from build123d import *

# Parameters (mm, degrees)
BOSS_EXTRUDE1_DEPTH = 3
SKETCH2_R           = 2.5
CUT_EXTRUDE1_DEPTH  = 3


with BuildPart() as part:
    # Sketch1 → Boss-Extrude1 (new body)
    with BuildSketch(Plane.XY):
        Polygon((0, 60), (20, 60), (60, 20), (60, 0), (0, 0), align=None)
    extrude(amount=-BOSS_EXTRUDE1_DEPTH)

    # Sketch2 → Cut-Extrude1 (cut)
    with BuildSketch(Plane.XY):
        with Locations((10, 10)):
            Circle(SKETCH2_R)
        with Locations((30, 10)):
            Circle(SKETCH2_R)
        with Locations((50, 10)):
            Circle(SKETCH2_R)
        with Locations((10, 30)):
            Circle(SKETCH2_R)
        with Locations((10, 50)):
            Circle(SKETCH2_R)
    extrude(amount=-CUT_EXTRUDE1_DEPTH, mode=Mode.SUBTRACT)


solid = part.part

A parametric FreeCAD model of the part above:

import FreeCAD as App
import Part
import Sketcher

doc = App.newDocument("Part")
body = doc.addObject("PartDesign::Body", "Body")

# Sketch on XY plane
sketch1 = body.newObject("Sketcher::SketchObject", "Sketch")
sketch1.AttachmentSupport = (doc.getObject("XY_Plane"), [""])
sketch1.MapMode = "FlatFace"
sketch1.addGeometry([
    Part.LineSegment(App.Vector(20, 60, 0), App.Vector(0, 60, 0)),  # 0
    Part.LineSegment(App.Vector(0, 60, 0), App.Vector(0, 0, 0)),  # 1
    Part.LineSegment(App.Vector(0, 0, 0), App.Vector(60, 0, 0)),  # 2
    Part.LineSegment(App.Vector(60, 0, 0), App.Vector(60, 20, 0)),  # 3
    Part.LineSegment(App.Vector(60, 20, 0), App.Vector(20, 60, 0)),  # 4
], False)
sketch1.addConstraint([
    Sketcher.Constraint("Coincident", 0, 2, 1, 1),
    Sketcher.Constraint("Coincident", 1, 2, 2, 1),
    Sketcher.Constraint("Coincident", 2, 2, 3, 1),
    Sketcher.Constraint("Coincident", 3, 2, 4, 1),
    Sketcher.Constraint("Coincident", 4, 2, 0, 1),
    Sketcher.Constraint("Horizontal", 0),
    Sketcher.Constraint("Vertical", 1),
    Sketcher.Constraint("Horizontal", 2),
    Sketcher.Constraint("Vertical", 3),
    Sketcher.Constraint("Coincident", 1, 2, -1, 1),
    Sketcher.Constraint("Equal", 2, 1),
    Sketcher.Constraint("Equal", 0, 3),
    Sketcher.Constraint("DistanceX", 0, 2, 0, 1, 20.0),
    Sketcher.Constraint("DistanceX", 2, 1, 2, 2, 60.0),
])
pad1 = body.newObject("PartDesign::Pad", "Pad")
pad1.Profile = sketch1
pad1.Length = 3
pad1.Reversed = True

# Sketch on XY plane
sketch2 = body.newObject("Sketcher::SketchObject", "Sketch001")
sketch2.AttachmentSupport = (doc.getObject("XY_Plane"), [""])
sketch2.MapMode = "FlatFace"
sketch2.addGeometry([
    Part.Circle(App.Vector(10, 10, 0), App.Vector(0, 0, 1), 2.5),  # 0
    Part.Circle(App.Vector(30, 10, 0), App.Vector(0, 0, 1), 2.5),  # 1
    Part.Circle(App.Vector(50, 10, 0), App.Vector(0, 0, 1), 2.5),  # 2
    Part.Circle(App.Vector(10, 30, 0), App.Vector(0, 0, 1), 2.5),  # 3
    Part.Circle(App.Vector(10, 50, 0), App.Vector(0, 0, 1), 2.5),  # 4
], False)
sketch2.addConstraint([
    Sketcher.Constraint("Equal", 0, 1),
    Sketcher.Constraint("Equal", 1, 2),
    Sketcher.Constraint("Equal", 2, 3),
    Sketcher.Constraint("Equal", 3, 4),
    Sketcher.Constraint("Horizontal", 0, 3, 1, 3),
    Sketcher.Constraint("Horizontal", 1, 3, 2, 3),
    Sketcher.Constraint("Vertical", 0, 3, 3, 3),
    Sketcher.Constraint("Vertical", 3, 3, 4, 3),
    Sketcher.Constraint("Diameter", 0, 5.0),
    Sketcher.Constraint("DistanceX", -1, 1, 0, 3, 10.0),
    Sketcher.Constraint("DistanceY", -1, 1, 0, 3, 10.0),
    Sketcher.Constraint("DistanceX", -1, 1, 1, 3, 30.0),
    Sketcher.Constraint("DistanceX", -1, 1, 2, 3, 50.0),
    Sketcher.Constraint("DistanceY", -1, 1, 3, 3, 30.0),
    Sketcher.Constraint("DistanceY", -1, 1, 4, 3, 50.0),
])
pocket1 = body.newObject("PartDesign::Pocket", "Pocket")
pocket1.Profile = sketch2
pocket1.Length = 3

doc.recompute()
